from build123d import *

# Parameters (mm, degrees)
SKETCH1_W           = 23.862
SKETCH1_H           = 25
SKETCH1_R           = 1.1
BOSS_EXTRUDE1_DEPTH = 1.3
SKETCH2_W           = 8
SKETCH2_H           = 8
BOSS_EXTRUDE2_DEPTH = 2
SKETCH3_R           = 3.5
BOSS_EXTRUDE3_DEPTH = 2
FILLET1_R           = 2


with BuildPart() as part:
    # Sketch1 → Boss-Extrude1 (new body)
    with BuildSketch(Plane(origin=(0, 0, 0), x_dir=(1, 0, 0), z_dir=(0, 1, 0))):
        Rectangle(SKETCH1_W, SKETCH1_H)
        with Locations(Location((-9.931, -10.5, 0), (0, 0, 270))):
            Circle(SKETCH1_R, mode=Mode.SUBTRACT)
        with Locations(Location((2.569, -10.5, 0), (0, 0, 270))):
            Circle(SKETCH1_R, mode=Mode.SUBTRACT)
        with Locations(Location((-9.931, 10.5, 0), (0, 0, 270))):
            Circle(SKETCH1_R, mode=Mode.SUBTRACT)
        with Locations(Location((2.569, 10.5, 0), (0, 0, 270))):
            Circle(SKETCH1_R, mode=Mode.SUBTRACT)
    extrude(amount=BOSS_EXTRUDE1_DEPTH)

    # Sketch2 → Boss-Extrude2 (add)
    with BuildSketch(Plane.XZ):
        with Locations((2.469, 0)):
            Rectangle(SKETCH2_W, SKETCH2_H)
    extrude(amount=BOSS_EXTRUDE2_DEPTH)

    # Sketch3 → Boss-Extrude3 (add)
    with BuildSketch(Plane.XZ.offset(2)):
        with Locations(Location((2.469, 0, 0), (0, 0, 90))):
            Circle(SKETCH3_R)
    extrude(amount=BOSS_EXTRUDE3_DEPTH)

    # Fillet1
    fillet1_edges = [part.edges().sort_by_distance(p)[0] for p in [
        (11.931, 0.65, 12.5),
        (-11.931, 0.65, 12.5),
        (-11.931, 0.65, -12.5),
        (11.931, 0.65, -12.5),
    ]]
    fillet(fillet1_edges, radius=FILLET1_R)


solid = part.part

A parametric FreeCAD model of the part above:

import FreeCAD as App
import Part
import Sketcher
from FreeCAD import Vector


def edges_at(feature, points):
    """Names of the edges that pass closest to the given points."""
    edges = feature.Shape.Edges
    near = lambda p: min(range(len(edges)), key=lambda i: edges[i].distToShape(Part.Vertex(*p))[0])
    return sorted({f"Edge{near(p) + 1}" for p in points})

doc = App.newDocument("Part")
body = doc.addObject("PartDesign::Body", "Body")

sketch1 = body.newObject("Sketcher::SketchObject", "Sketch")
sketch1.AttachmentSupport = (doc.getObject("XZ_Plane"), [""])
sketch1.MapMode = "FlatFace"
sketch1.addGeometry([
    Part.LineSegment(Vector(-11.9, -12.5, 0), Vector(-11.9, 12.5, 0)),
    Part.LineSegment(Vector(-11.9, 12.5, 0), Vector(11.9, 12.5, 0)),
    Part.LineSegment(Vector(11.9, 12.5, 0), Vector(11.9, -12.5, 0)),
    Part.LineSegment(Vector(11.9, -12.5, 0), Vector(-11.9, -12.5, 0)),
    Part.Circle(Vector(-9.9, 10.5, 0), Vector(0, 0, 1), 1.1),
    Part.Circle(Vector(2.6, 10.5, 0), Vector(0, 0, 1), 1.1),
    Part.Circle(Vector(-9.9, -10.5, 0), Vector(0, 0, 1), 1.1),
    Part.Circle(Vector(2.6, -10.5, 0), Vector(0, 0, 1), 1.1),
], False)
sketch1.addConstraint([
    Sketcher.Constraint("Coincident", 0, 2, 1, 1),
    Sketcher.Constraint("Coincident", 1, 2, 2, 1),
    Sketcher.Constraint("Coincident", 2, 2, 3, 1),
    Sketcher.Constraint("Coincident", 3, 2, 0, 1),
    Sketcher.Constraint("Vertical", 0),
    Sketcher.Constraint("Horizontal", 1),
    Sketcher.Constraint("Vertical", 2),
    Sketcher.Constraint("Horizontal", 3),
    Sketcher.Constraint("Equal", 4, 5),
    Sketcher.Constraint("Equal", 5, 6),
    Sketcher.Constraint("Equal", 6, 7),
    Sketcher.Constraint("Symmetric", 0, 2, 2, 2, -1, 1),
    Sketcher.Constraint("Symmetric", 4, 3, 6, 3, -1),
    Sketcher.Constraint("Symmetric", 5, 3, 7, 3, -1),
    Sketcher.Constraint("Horizontal", 4, 3, 5, 3),
    Sketcher.Constraint("Diameter", 4, 2.2),
    Sketcher.Constraint("DistanceY", 0, 1, 0, 2, 25.0),
    Sketcher.Constraint("DistanceY", 6, 3, 4, 3, 21.0),
    Sketcher.Constraint("DistanceX", 0, 2, 4, 3, 2.0),
    Sketcher.Constraint("DistanceX", 4, 3, 5, 3, 12.5),
    Sketcher.Constraint("DistanceX", 1, 1, 1, 2, 23.862),
])
pad1 = body.newObject("PartDesign::Pad", "Pad")
pad1.Profile = sketch1
pad1.Length = 1.3
pad1.Reversed = True

sketch2 = body.newObject("Sketcher::SketchObject", "Sketch001")
sketch2.AttachmentSupport = (doc.getObject("XZ_Plane"), [""])
sketch2.MapMode = "FlatFace"
sketch2.addGeometry([
    Part.LineSegment(Vector(-2, 4, 0), Vector(-2, -4, 0)),
    Part.LineSegment(Vector(-2, -4, 0), Vector(6, -4, 0)),
    Part.LineSegment(Vector(6, -4, 0), Vector(6, 4, 0)),
    Part.LineSegment(Vector(6, 4, 0), Vector(-2, 4, 0)),
], False)
sketch2.addConstraint([
    Sketcher.Constraint("Coincident", 0, 2, 1, 1),
    Sketcher.Constraint("Coincident", 1, 2, 2, 1),
    Sketcher.Constraint("Coincident", 2, 2, 3, 1),
    Sketcher.Constraint("Coincident", 3, 2, 0, 1),
    Sketcher.Constraint("Vertical", 0),
    Sketcher.Constraint("Horizontal", 1),
    Sketcher.Constraint("Vertical", 2),
    Sketcher.Constraint("Horizontal", 3),
    Sketcher.Constraint("Equal", 3, 0),
    Sketcher.Constraint("DistanceX", 1, 1, 1, 2, 8.0),
    Sketcher.Constraint("DistanceY", 0, 2, -1, 1, 4.0),
    Sketcher.Constraint("DistanceX", 0, 2, -1, 1, 1.531),
])
pad2 = body.newObject("PartDesign::Pad", "Pad001")
pad2.Profile = sketch2
pad2.Length = 2

sketch3 = body.newObject("Sketcher::SketchObject", "Sketch002")
sketch3.AttachmentSupport = (doc.getObject("XZ_Plane"), [""])
sketch3.MapMode = "FlatFace"
sketch3.AttachmentOffset = App.Placement(Vector(0, 0, 2), App.Rotation())
sketch3.addGeometry(Part.Circle(Vector(2.5, 0, 0), Vector(0, 0, 1), 3.5), False)
sketch3.addConstraint([
    Sketcher.Constraint("PointOnObject", 0, 3, -1),
    Sketcher.Constraint("Diameter", 0, 7.0),
    Sketcher.Constraint("DistanceX", -1, 1, 0, 3, 2.469),
])
pad3 = body.newObject("PartDesign::Pad", "Pad002")
pad3.Profile = sketch3
pad3.Length = 2
doc.recompute()

fillet = body.newObject("PartDesign::Fillet", "Fillet")
fillet.Base = (pad3, edges_at(pad3, [
    (11.931, 0.65, 12.5),
    (-11.931, 0.65, 12.5),
    (-11.931, 0.65, -12.5),
    (11.931, 0.65, -12.5),
]))
fillet.Radius = 2

doc.recompute()
